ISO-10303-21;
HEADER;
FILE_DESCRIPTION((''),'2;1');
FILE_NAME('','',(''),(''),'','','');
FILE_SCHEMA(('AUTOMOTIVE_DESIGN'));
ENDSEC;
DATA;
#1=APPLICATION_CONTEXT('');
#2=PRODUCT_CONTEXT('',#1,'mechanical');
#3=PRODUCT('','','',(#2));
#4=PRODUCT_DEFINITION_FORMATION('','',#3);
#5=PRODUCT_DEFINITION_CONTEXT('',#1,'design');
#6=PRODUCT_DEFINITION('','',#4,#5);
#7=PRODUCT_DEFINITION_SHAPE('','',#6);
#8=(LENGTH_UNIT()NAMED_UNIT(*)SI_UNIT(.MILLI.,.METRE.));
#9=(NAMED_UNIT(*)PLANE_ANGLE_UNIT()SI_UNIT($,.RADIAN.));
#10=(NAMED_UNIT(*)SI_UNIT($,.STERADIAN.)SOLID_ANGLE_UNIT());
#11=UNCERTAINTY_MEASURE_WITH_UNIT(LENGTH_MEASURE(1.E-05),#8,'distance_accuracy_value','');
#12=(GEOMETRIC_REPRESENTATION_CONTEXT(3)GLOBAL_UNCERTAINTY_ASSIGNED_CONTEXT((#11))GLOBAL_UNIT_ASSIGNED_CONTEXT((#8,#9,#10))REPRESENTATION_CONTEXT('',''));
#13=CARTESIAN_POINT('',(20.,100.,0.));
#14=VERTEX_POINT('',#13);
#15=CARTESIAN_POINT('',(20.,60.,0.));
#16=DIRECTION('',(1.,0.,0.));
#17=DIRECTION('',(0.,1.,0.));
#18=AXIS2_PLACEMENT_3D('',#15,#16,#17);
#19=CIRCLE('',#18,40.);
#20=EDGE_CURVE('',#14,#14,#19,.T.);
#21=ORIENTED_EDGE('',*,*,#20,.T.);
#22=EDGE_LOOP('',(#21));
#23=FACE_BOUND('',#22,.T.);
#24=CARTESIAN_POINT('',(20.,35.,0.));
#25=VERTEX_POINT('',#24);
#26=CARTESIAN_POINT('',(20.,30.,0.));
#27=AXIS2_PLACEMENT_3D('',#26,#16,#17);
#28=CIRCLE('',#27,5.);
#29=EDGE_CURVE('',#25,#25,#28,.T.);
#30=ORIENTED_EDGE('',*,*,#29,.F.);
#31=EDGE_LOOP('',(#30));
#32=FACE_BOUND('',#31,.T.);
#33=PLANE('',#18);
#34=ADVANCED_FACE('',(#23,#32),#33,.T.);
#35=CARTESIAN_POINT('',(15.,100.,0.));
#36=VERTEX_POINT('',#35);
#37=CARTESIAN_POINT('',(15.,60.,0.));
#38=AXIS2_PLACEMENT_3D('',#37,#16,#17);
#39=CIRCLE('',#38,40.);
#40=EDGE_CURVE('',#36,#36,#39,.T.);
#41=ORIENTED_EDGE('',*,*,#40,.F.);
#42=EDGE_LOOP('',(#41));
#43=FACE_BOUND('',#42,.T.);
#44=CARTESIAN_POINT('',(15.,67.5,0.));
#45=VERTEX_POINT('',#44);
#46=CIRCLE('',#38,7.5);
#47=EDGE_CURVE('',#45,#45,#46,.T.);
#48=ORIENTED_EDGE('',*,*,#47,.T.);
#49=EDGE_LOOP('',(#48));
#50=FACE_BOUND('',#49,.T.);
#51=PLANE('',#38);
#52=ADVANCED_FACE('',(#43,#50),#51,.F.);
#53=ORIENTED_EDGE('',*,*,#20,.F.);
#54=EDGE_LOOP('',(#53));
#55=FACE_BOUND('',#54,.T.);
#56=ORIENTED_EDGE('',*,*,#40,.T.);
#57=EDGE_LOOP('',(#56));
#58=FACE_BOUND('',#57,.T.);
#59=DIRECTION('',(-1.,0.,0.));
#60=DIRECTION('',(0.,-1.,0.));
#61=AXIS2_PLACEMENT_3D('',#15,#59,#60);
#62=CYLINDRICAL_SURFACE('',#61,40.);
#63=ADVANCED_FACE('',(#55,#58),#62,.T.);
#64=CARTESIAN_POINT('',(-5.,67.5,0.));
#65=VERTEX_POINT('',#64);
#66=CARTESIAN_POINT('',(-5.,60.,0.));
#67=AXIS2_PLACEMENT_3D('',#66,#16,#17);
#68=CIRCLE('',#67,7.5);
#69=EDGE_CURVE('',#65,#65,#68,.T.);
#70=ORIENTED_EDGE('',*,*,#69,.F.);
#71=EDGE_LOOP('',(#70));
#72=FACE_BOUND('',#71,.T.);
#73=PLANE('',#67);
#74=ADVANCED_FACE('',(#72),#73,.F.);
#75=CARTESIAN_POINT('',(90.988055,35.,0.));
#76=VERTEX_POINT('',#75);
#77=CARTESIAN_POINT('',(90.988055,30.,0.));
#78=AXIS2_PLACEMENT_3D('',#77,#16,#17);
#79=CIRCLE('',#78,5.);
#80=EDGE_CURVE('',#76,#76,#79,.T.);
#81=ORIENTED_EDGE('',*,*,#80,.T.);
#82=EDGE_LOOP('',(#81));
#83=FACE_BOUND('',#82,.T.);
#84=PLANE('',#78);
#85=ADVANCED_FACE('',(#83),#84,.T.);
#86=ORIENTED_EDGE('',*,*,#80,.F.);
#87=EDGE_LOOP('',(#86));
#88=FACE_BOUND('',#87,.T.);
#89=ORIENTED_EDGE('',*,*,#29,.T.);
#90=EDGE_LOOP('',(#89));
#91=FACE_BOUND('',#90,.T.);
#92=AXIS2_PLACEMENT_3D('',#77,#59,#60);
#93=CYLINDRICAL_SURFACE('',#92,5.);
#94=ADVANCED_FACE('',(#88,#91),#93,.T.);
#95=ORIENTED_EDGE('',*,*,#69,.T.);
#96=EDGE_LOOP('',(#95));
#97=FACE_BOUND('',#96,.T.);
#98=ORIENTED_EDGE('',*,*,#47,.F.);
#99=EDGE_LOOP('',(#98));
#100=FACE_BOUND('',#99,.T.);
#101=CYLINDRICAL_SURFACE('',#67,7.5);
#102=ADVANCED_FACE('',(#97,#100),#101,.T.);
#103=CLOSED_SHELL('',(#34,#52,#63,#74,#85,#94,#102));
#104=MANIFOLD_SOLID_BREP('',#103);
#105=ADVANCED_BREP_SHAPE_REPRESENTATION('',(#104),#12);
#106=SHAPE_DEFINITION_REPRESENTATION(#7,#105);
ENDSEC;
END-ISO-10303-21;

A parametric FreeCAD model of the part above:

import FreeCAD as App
import Part
import Sketcher

V = App.Vector

doc = App.newDocument("Part")
body = doc.addObject("PartDesign::Body", "Body")

# Sketch on YZ plane
sketch1 = doc.addObject("Sketcher::SketchObject", "Sketch")
body.addObject(sketch1)
sketch1.AttachmentSupport = (doc.YZ_Plane, [""])
sketch1.MapMode = "FlatFace"
sketch1.AttachmentOffset = App.Placement(V(0, 0, 10), App.Rotation())
sketch1.addGeometry(Part.Circle(V(60, 0, 0), V(0, 0, 1), 8), False)
sketch1.addConstraint([
    Sketcher.Constraint("PointOnObject", 0, 3, -1),
    Sketcher.Constraint("Diameter", 0, 15.0),
    Sketcher.Constraint("DistanceX", -1, 1, 0, 3, 60.0),
])
pad1 = doc.addObject("PartDesign::Pad", "Pad")
body.addObject(pad1)
pad1.Profile = sketch1
pad1.Type = "TwoLengths"
pad1.Length = 5
pad1.Length2 = 15

# Sketch on YZ plane
sketch2 = doc.addObject("Sketcher::SketchObject", "Sketch001")
body.addObject(sketch2)
sketch2.AttachmentSupport = (doc.YZ_Plane, [""])
sketch2.MapMode = "FlatFace"
sketch2.AttachmentOffset = App.Placement(V(0, 0, 15), App.Rotation())
sketch2.addGeometry(Part.Circle(V(60, 0, 0), V(0, 0, 1), 40), False)
sketch2.addConstraint([
    Sketcher.Constraint("PointOnObject", 0, 3, -1),
    Sketcher.Constraint("Diameter", 0, 80.0),
    Sketcher.Constraint("DistanceX", -1, 1, 0, 3, 60.0),
])
pad2 = doc.addObject("PartDesign::Pad", "Pad001")
body.addObject(pad2)
pad2.Profile = sketch2
pad2.Length = 5

# Sketch on YZ plane
sketch3 = doc.addObject("Sketcher::SketchObject", "Sketch002")
body.addObject(sketch3)
sketch3.AttachmentSupport = (doc.YZ_Plane, [""])
sketch3.MapMode = "FlatFace"
sketch3.AttachmentOffset = App.Placement(V(0, 0, 20), App.Rotation())
sketch3.addGeometry(Part.Circle(V(30, 0, 0), V(0, 0, 1), 5), False)
sketch3.addConstraint([
    Sketcher.Constraint("PointOnObject", 0, 3, -1),
    Sketcher.Constraint("Diameter", 0, 10.0),
    Sketcher.Constraint("DistanceX", -1, 1, 0, 3, 30.0),
])
pad3 = doc.addObject("PartDesign::Pad", "Pad002")
body.addObject(pad3)
pad3.Profile = sketch3
pad3.Length = 70.988055

doc.recompute()
